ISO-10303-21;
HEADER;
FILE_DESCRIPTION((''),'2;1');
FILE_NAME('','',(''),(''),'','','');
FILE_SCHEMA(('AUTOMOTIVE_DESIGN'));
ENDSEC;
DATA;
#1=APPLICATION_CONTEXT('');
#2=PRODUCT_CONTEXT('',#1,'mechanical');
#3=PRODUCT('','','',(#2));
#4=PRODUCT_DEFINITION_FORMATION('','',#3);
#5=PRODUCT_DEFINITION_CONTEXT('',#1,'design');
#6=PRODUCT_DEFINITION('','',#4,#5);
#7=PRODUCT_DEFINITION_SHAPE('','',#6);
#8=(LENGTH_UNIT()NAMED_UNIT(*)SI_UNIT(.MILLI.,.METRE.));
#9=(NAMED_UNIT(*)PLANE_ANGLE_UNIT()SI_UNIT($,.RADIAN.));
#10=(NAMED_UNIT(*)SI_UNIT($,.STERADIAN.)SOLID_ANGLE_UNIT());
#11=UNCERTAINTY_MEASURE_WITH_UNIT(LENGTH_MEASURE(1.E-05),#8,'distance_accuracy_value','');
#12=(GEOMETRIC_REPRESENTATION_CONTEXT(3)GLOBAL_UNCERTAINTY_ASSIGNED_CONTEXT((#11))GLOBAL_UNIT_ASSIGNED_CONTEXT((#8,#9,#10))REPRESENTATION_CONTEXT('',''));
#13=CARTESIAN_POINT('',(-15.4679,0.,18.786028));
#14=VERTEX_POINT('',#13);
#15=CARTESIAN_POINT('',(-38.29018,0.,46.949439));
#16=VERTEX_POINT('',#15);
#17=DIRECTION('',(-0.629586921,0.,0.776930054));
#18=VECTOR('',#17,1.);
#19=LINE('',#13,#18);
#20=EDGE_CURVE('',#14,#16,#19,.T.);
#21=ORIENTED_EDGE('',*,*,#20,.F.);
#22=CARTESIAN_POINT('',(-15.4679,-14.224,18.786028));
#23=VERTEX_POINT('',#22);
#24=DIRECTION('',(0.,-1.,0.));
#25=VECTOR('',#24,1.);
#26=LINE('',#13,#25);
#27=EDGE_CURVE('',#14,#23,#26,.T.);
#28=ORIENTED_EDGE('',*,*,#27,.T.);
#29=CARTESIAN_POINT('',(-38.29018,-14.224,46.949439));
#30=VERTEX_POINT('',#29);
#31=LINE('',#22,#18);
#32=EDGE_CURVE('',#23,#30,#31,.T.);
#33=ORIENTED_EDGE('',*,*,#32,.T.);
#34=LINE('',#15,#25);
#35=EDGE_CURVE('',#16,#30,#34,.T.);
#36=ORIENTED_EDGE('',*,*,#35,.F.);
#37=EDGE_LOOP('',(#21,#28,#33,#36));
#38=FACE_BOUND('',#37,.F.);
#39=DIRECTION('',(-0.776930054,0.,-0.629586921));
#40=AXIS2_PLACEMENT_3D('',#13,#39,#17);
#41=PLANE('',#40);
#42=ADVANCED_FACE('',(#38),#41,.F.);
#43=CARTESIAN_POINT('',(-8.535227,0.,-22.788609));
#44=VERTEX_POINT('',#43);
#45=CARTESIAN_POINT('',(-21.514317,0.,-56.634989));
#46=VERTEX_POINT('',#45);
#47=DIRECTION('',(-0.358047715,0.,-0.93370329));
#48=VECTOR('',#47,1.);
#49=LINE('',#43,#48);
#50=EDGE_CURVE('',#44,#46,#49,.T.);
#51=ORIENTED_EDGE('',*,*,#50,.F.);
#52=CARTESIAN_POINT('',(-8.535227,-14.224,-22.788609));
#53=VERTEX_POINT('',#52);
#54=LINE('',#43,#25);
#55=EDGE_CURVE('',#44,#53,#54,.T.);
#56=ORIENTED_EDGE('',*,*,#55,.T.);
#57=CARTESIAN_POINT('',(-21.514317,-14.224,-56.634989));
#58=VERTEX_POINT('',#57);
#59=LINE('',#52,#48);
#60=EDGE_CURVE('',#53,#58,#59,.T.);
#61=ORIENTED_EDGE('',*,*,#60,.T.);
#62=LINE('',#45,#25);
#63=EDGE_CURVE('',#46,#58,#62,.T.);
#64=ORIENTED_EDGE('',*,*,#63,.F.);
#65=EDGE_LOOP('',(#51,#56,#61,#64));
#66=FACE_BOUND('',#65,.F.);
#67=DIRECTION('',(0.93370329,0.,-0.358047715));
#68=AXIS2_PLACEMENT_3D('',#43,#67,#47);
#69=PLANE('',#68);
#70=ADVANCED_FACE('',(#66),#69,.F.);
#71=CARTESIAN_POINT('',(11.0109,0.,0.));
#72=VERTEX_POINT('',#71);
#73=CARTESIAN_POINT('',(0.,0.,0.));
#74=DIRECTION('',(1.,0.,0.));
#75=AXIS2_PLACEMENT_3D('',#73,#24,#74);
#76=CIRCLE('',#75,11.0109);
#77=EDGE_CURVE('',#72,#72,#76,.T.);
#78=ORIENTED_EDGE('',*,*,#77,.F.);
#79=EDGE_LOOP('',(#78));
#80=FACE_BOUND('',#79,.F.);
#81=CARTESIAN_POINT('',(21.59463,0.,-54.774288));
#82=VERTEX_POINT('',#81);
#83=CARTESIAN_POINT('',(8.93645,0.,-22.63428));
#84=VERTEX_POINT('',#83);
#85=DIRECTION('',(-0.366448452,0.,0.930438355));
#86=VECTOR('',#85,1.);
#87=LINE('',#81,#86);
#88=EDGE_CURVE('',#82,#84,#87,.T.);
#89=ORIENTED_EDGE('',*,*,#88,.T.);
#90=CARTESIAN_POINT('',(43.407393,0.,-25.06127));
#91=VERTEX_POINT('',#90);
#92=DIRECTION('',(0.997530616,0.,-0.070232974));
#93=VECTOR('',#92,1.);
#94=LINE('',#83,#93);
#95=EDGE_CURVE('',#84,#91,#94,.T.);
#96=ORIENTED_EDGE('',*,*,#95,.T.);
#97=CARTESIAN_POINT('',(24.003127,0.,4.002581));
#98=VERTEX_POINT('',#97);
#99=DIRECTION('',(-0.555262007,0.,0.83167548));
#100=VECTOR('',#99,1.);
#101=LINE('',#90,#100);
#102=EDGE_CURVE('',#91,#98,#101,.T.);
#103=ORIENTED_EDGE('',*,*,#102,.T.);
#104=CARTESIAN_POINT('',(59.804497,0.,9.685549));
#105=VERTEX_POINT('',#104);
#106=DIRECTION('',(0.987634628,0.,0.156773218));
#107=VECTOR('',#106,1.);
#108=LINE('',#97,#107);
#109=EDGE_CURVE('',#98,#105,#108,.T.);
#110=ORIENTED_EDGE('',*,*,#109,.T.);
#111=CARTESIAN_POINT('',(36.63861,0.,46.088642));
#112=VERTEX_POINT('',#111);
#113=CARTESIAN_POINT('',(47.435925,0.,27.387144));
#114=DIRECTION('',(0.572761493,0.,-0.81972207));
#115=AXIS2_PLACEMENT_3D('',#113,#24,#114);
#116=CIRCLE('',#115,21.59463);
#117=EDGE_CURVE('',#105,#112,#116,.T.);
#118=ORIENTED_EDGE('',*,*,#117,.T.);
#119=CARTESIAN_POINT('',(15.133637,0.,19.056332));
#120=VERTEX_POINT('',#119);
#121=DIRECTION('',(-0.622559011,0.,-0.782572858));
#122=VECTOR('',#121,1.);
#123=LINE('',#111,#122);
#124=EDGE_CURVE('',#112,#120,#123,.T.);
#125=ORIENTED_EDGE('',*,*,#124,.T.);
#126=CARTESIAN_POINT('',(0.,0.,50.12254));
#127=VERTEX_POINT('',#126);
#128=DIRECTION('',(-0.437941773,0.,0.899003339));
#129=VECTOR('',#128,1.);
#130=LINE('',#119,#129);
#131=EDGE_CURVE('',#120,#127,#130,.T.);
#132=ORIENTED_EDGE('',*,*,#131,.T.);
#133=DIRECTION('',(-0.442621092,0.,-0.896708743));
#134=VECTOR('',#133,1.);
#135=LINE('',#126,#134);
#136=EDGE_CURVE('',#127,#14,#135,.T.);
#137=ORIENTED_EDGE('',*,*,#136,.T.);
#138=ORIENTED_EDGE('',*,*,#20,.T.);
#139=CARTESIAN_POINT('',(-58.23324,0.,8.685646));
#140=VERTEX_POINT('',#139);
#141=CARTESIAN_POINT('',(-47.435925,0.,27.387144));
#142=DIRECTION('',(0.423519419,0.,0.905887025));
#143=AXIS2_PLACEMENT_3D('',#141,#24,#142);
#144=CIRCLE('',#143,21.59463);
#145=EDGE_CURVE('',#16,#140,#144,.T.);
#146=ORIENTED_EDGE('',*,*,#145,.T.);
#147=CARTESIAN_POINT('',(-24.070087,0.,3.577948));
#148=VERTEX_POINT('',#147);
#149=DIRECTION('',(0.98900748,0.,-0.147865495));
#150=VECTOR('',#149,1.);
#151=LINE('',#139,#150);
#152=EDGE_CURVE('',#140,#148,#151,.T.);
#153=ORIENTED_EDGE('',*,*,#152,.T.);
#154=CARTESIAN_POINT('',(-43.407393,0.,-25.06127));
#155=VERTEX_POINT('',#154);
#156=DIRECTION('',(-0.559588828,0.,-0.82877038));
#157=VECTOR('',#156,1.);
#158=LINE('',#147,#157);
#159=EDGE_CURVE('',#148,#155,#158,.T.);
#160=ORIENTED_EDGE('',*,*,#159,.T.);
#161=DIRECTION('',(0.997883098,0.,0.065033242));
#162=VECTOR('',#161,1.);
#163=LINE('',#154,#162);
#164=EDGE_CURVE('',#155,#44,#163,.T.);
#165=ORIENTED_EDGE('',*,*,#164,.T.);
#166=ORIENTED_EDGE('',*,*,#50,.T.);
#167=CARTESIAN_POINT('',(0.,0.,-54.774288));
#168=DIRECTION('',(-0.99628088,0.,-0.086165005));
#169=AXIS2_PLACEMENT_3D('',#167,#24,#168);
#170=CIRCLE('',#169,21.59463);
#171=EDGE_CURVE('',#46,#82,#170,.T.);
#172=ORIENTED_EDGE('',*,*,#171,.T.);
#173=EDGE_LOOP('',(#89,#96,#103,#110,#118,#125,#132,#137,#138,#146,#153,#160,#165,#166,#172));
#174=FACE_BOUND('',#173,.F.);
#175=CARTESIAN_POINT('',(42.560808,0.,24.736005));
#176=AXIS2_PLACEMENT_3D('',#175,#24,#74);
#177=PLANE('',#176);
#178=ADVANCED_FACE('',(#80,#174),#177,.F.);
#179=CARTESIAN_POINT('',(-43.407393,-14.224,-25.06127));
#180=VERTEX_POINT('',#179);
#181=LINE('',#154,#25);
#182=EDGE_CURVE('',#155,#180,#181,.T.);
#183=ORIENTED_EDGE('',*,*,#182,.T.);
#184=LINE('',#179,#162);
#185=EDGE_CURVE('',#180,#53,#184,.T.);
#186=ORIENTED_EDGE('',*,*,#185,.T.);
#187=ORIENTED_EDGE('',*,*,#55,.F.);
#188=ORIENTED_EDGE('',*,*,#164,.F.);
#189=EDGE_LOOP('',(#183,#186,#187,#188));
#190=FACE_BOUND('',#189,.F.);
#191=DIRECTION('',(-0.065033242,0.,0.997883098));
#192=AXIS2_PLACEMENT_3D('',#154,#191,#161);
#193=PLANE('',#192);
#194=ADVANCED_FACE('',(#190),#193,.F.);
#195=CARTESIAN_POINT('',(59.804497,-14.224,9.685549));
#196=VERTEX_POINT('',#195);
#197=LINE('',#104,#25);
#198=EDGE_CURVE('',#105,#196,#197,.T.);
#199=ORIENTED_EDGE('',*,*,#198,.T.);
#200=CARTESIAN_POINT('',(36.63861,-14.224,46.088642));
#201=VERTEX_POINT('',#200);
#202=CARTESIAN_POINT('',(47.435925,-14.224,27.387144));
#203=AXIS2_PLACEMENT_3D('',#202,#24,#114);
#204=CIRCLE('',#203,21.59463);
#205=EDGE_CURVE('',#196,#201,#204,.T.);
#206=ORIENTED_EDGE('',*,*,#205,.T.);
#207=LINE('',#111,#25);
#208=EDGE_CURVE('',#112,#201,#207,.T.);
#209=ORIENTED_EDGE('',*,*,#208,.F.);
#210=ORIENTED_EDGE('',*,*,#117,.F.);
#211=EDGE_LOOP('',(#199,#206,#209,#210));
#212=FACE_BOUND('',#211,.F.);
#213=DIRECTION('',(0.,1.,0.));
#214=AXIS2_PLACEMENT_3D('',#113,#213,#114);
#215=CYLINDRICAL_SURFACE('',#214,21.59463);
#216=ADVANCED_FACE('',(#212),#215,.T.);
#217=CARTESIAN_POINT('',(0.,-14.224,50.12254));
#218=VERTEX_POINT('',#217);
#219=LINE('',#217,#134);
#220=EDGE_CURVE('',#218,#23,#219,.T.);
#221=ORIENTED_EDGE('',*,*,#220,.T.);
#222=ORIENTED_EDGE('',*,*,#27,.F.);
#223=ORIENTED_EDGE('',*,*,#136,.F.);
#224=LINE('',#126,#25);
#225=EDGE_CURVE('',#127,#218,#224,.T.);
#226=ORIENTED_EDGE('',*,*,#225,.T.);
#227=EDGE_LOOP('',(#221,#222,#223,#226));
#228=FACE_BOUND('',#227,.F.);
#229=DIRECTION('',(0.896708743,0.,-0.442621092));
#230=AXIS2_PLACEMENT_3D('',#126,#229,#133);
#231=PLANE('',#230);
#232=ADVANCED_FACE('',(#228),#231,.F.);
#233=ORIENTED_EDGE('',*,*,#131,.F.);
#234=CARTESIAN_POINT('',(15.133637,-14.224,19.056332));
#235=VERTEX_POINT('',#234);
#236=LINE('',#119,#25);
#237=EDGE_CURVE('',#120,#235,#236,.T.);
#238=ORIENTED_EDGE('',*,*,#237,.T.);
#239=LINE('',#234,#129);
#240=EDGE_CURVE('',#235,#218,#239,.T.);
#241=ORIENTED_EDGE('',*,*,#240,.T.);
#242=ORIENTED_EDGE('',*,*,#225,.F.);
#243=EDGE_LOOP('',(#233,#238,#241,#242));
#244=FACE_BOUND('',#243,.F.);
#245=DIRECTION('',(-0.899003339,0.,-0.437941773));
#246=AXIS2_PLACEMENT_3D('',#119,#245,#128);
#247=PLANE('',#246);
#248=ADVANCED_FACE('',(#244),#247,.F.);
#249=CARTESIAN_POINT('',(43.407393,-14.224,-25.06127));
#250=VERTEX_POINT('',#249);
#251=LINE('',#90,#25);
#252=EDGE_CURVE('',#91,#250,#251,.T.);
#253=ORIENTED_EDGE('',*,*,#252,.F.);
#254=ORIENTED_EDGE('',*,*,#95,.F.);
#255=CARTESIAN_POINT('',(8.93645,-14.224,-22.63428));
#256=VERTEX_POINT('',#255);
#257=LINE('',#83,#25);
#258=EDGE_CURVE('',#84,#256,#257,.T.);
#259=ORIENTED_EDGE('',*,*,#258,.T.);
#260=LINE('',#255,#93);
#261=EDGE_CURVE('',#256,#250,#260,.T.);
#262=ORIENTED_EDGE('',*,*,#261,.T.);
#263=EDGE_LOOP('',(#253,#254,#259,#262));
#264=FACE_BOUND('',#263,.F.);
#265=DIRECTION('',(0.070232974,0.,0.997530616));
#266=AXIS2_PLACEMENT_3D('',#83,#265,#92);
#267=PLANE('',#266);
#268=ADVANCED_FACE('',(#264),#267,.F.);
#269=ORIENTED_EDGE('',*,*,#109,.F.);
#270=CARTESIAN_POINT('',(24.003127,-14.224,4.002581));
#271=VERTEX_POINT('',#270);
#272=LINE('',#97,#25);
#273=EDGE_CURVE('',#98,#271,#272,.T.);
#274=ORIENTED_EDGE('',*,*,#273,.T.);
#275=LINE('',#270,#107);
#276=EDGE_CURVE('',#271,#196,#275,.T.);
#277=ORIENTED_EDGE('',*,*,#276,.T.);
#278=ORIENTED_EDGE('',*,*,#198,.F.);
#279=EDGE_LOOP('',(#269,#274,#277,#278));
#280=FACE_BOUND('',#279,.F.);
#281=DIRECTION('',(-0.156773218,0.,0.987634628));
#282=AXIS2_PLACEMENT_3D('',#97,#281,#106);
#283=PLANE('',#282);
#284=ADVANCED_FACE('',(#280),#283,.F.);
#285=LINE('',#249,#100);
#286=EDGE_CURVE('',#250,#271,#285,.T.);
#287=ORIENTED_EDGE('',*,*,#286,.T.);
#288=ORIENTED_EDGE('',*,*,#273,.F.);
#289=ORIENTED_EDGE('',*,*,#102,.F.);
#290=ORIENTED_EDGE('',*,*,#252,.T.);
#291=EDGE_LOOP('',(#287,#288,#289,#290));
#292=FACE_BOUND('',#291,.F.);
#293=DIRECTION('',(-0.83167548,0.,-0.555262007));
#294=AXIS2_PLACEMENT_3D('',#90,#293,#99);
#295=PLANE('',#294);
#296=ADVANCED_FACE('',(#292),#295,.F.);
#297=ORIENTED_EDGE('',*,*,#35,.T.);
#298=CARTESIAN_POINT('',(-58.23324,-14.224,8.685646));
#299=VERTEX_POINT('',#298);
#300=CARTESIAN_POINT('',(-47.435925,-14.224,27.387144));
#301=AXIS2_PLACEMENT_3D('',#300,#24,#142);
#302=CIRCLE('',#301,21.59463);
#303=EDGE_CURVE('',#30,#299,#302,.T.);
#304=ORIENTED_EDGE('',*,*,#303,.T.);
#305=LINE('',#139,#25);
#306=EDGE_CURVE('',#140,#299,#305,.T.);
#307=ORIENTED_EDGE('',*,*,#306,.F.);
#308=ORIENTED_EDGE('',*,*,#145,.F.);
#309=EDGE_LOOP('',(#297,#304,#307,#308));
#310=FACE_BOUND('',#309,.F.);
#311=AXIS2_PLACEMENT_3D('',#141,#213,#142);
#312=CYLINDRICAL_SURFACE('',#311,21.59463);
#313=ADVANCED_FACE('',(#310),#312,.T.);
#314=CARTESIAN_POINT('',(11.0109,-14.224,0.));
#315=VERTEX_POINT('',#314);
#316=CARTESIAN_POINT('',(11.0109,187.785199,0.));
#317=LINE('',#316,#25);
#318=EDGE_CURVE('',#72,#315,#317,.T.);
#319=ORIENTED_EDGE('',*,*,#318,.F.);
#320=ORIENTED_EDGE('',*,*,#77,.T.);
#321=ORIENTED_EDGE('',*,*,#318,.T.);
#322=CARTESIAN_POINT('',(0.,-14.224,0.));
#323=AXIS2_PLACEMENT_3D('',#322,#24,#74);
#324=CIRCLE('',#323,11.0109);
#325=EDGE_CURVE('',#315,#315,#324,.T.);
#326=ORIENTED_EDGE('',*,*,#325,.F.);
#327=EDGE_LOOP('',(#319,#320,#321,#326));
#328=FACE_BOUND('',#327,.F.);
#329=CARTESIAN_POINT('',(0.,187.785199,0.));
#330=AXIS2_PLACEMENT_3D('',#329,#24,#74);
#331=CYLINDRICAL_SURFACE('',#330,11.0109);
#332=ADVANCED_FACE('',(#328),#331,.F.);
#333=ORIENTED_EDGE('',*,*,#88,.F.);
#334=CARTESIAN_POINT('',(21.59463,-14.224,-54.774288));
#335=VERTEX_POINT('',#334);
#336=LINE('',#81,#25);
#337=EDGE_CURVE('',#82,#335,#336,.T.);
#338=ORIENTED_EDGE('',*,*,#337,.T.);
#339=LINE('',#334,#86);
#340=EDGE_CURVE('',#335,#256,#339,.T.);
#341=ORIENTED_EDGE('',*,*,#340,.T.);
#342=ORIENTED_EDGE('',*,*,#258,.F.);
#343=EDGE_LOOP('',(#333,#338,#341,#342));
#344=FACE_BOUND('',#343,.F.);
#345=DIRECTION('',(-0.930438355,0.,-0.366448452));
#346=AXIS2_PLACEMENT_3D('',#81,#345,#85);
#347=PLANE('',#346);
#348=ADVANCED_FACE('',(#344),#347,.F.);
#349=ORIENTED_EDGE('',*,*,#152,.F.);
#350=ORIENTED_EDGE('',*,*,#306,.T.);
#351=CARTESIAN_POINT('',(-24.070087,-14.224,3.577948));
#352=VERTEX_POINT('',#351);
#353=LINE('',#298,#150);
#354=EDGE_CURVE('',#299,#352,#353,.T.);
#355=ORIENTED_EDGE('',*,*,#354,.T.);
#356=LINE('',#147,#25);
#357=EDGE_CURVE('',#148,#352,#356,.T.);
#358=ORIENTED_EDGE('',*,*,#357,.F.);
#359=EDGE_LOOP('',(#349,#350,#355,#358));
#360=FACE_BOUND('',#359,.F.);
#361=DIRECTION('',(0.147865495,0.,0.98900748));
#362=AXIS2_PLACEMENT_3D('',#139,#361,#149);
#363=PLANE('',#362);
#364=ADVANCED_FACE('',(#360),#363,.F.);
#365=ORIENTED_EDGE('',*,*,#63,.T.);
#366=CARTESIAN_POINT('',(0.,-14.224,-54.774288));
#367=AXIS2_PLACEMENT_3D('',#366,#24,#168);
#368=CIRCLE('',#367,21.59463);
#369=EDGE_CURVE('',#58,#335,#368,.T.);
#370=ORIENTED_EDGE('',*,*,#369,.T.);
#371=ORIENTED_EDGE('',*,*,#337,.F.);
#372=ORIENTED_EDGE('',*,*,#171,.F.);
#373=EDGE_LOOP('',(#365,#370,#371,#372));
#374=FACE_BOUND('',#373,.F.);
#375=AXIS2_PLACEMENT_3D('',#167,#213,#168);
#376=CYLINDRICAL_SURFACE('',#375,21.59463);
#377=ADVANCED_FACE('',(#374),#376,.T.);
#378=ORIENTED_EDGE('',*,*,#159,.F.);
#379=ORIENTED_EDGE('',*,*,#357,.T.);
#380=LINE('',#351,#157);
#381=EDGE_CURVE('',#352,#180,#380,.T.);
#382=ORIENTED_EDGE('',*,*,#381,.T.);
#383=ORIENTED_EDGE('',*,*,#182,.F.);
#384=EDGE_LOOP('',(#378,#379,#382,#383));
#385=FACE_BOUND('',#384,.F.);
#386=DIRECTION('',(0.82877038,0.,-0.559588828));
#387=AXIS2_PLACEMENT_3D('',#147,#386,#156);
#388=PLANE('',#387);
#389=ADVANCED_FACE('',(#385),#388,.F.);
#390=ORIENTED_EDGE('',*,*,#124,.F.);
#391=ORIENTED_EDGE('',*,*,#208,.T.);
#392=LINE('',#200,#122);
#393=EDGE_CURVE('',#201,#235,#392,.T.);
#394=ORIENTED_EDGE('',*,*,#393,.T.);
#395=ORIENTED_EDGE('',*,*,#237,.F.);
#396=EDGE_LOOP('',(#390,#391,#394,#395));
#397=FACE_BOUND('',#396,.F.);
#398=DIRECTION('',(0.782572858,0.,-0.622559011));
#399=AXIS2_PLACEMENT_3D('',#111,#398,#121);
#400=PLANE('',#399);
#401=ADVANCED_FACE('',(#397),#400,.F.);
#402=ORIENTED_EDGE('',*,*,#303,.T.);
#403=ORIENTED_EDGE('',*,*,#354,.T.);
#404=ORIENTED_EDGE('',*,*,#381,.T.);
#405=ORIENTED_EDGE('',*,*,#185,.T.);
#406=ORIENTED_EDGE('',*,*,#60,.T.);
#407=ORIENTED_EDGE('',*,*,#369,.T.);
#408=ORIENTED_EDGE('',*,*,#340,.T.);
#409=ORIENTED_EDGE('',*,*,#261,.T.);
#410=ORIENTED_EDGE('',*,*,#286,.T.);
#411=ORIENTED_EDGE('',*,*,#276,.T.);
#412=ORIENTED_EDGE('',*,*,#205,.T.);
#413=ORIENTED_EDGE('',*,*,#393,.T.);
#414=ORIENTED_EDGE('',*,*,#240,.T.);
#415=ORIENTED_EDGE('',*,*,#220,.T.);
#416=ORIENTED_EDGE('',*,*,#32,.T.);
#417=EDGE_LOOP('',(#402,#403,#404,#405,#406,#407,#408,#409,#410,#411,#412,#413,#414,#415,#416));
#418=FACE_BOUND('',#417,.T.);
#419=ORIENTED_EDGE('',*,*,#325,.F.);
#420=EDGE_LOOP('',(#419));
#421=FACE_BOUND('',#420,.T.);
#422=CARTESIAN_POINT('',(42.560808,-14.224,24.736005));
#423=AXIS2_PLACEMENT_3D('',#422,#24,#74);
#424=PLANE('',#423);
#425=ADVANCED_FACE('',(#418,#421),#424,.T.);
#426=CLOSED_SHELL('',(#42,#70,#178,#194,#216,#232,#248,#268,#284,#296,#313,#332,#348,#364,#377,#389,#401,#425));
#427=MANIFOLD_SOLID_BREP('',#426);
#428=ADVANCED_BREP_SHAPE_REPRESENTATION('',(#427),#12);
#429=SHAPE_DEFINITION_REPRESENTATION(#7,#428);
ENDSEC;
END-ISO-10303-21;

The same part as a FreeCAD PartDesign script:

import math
import FreeCAD as App
import Part
import Sketcher

V = App.Vector
Q = App.Units.Quantity

doc = App.newDocument("Part")
body = doc.addObject("PartDesign::Body", "Body")

# Sketch on XZ plane
sketch1 = body.newObject("Sketcher::SketchObject", "Sketch")
sketch1.AttachmentSupport = (doc.getObject("XZ_Plane"), [""])
sketch1.MapMode = "FlatFace"
sketch1.addGeometry([
    Part.LineSegment(V(24, 4, 0), V(60, 10, 0)),  # 0
    Part.ArcOfCircle(Part.Circle(V(47, 27, 0), V(0, 0, 1), 22), math.radians(-55), math.radians(120)),  # 1
    Part.LineSegment(V(37, 46, 0), V(15, 19, 0)),  # 2
    Part.LineSegment(V(15, 19, 0), V(0, 50, 0)),  # 3
    Part.LineSegment(V(0, 50, 0), V(-15, 19, 0)),  # 4
    Part.LineSegment(V(-15, 19, 0), V(-38, 47, 0)),  # 5
    Part.ArcOfCircle(Part.Circle(V(-47, 27, 0), V(0, 0, 1), 22), math.radians(65), math.radians(240)),  # 6
    Part.LineSegment(V(-58, 9, 0), V(-24, 4, 0)),  # 7
    Part.LineSegment(V(-24, 4, 0), V(-43, -25, 0)),  # 8
    Part.LineSegment(V(-43, -25, 0), V(-9, -23, 0)),  # 9
    Part.LineSegment(V(-9, -23, 0), V(-22, -57, 0)),  # 10
    Part.ArcOfCircle(Part.Circle(V(0, -55, 0), V(0, 0, 1), 22), math.radians(-175), math.radians(0)),  # 11
    Part.LineSegment(V(22, -55, 0), V(9, -23, 0)),  # 12
    Part.LineSegment(V(9, -23, 0), V(43, -25, 0)),  # 13
    Part.LineSegment(V(43, -25, 0), V(24, 4, 0)),  # 14
], False)
sketch1.addConstraint([
    Sketcher.Constraint("Coincident", 0, 2, 1, 1),
    Sketcher.Constraint("Coincident", 1, 2, 2, 1),
    Sketcher.Constraint("Coincident", 2, 2, 3, 1),
    Sketcher.Constraint("Coincident", 3, 2, 4, 1),
    Sketcher.Constraint("Coincident", 4, 2, 5, 1),
    Sketcher.Constraint("Coincident", 5, 2, 6, 1),
    Sketcher.Constraint("Coincident", 6, 2, 7, 1),
    Sketcher.Constraint("Coincident", 7, 2, 8, 1),
    Sketcher.Constraint("Coincident", 8, 2, 9, 1),
    Sketcher.Constraint("Coincident", 9, 2, 10, 1),
    Sketcher.Constraint("Coincident", 10, 2, 11, 1),
    Sketcher.Constraint("Coincident", 11, 2, 12, 1),
    Sketcher.Constraint("Coincident", 12, 2, 13, 1),
    Sketcher.Constraint("Coincident", 13, 2, 14, 1),
    Sketcher.Constraint("Coincident", 14, 2, 0, 1),
    Sketcher.Constraint("Equal", 1, 6),
    Sketcher.Constraint("Equal", 6, 11),
    Sketcher.Constraint("Symmetric", 1, 3, 6, 3, -2),
    Sketcher.Constraint("Symmetric", 8, 2, 13, 2, -2),
    Sketcher.Constraint("PointOnObject", 11, 3, -2),
    Sketcher.Constraint("PointOnObject", 3, 2, -2),
    Sketcher.Constraint("Equal", 0, 5),
    Sketcher.Constraint("Equal", 2, 7),
    Sketcher.Constraint("Equal", 3, 8),
    Sketcher.Constraint("Equal", 4, 9),
    Sketcher.Constraint("Equal", 5, 10),
    Sketcher.Constraint("Equal", 7, 12),
    Sketcher.Constraint("Equal", 8, 13),
    Sketcher.Constraint("Equal", 9, 14),
    Sketcher.Constraint("Radius", 1, 21.59463),
    Sketcher.Constraint("DistanceX", 5, 2, 2, 2, Q("2.1032999 in")),
    Sketcher.Constraint("DistanceX", 4, 2, -1, 1, 15.4679),
    Sketcher.Constraint("DistanceY", 1, 3, 1, 2, 18.701498),
    Sketcher.Constraint("DistanceY", 5, 2, 3, 2, 3.173101),
    Sketcher.Constraint("DistanceY", 6, 2, 6, 3, 18.701498),
    Sketcher.Constraint("DistanceY", 7, 2, 6, 2, 5.107698),
    Sketcher.Constraint("DistanceY", 8, 2, 4, 2, 43.847298),
    Sketcher.Constraint("DistanceY", 10, 2, 11, 3, 1.860701),
    Sketcher.Constraint("DistanceY", 10, 2, 11, 2, 1.860701),
    Sketcher.Constraint("Distance", 0, 36.24961),
    Sketcher.Constraint("DistanceY", -1, 1, 0, 2, 9.685549),
    Sketcher.Constraint("DistanceX", -1, 1, 1, 2, 36.63861),
    Sketcher.Constraint("DistanceY", -1, 1, 3, 2, 50.12254),
    Sketcher.Constraint("DistanceY", -1, 1, 4, 2, 18.786028),
    Sketcher.Constraint("DistanceY", 9, 2, -1, 1, 22.788609),
    Sketcher.Constraint("DistanceY", 10, 2, -1, 1, 56.634989),
])
pad1 = body.newObject("PartDesign::Pad", "Pad")
pad1.Profile = sketch1
pad1.Length = Q("0.56 in")

# Sketch on XZ plane
sketch2 = body.newObject("Sketcher::SketchObject", "Sketch001")
sketch2.AttachmentSupport = (doc.getObject("XZ_Plane"), [""])
sketch2.MapMode = "FlatFace"
sketch2.addGeometry(Part.Circle(V(0, 0, 0), V(0, 0, 1), 11), False)
sketch2.addConstraint([
    Sketcher.Constraint("Coincident", 0, 3, -1, 1),
    Sketcher.Constraint("Diameter", 0, Q("0.867 in")),
])
doc.recompute()
hole = body.newObject("PartDesign::Hole", "Hole")
hole.Profile = sketch2
hole.ThreadType = "None"
hole.Diameter = Q("0.867 in")
hole.DepthType = "ThroughAll"
hole.Reversed = True

doc.recompute()
